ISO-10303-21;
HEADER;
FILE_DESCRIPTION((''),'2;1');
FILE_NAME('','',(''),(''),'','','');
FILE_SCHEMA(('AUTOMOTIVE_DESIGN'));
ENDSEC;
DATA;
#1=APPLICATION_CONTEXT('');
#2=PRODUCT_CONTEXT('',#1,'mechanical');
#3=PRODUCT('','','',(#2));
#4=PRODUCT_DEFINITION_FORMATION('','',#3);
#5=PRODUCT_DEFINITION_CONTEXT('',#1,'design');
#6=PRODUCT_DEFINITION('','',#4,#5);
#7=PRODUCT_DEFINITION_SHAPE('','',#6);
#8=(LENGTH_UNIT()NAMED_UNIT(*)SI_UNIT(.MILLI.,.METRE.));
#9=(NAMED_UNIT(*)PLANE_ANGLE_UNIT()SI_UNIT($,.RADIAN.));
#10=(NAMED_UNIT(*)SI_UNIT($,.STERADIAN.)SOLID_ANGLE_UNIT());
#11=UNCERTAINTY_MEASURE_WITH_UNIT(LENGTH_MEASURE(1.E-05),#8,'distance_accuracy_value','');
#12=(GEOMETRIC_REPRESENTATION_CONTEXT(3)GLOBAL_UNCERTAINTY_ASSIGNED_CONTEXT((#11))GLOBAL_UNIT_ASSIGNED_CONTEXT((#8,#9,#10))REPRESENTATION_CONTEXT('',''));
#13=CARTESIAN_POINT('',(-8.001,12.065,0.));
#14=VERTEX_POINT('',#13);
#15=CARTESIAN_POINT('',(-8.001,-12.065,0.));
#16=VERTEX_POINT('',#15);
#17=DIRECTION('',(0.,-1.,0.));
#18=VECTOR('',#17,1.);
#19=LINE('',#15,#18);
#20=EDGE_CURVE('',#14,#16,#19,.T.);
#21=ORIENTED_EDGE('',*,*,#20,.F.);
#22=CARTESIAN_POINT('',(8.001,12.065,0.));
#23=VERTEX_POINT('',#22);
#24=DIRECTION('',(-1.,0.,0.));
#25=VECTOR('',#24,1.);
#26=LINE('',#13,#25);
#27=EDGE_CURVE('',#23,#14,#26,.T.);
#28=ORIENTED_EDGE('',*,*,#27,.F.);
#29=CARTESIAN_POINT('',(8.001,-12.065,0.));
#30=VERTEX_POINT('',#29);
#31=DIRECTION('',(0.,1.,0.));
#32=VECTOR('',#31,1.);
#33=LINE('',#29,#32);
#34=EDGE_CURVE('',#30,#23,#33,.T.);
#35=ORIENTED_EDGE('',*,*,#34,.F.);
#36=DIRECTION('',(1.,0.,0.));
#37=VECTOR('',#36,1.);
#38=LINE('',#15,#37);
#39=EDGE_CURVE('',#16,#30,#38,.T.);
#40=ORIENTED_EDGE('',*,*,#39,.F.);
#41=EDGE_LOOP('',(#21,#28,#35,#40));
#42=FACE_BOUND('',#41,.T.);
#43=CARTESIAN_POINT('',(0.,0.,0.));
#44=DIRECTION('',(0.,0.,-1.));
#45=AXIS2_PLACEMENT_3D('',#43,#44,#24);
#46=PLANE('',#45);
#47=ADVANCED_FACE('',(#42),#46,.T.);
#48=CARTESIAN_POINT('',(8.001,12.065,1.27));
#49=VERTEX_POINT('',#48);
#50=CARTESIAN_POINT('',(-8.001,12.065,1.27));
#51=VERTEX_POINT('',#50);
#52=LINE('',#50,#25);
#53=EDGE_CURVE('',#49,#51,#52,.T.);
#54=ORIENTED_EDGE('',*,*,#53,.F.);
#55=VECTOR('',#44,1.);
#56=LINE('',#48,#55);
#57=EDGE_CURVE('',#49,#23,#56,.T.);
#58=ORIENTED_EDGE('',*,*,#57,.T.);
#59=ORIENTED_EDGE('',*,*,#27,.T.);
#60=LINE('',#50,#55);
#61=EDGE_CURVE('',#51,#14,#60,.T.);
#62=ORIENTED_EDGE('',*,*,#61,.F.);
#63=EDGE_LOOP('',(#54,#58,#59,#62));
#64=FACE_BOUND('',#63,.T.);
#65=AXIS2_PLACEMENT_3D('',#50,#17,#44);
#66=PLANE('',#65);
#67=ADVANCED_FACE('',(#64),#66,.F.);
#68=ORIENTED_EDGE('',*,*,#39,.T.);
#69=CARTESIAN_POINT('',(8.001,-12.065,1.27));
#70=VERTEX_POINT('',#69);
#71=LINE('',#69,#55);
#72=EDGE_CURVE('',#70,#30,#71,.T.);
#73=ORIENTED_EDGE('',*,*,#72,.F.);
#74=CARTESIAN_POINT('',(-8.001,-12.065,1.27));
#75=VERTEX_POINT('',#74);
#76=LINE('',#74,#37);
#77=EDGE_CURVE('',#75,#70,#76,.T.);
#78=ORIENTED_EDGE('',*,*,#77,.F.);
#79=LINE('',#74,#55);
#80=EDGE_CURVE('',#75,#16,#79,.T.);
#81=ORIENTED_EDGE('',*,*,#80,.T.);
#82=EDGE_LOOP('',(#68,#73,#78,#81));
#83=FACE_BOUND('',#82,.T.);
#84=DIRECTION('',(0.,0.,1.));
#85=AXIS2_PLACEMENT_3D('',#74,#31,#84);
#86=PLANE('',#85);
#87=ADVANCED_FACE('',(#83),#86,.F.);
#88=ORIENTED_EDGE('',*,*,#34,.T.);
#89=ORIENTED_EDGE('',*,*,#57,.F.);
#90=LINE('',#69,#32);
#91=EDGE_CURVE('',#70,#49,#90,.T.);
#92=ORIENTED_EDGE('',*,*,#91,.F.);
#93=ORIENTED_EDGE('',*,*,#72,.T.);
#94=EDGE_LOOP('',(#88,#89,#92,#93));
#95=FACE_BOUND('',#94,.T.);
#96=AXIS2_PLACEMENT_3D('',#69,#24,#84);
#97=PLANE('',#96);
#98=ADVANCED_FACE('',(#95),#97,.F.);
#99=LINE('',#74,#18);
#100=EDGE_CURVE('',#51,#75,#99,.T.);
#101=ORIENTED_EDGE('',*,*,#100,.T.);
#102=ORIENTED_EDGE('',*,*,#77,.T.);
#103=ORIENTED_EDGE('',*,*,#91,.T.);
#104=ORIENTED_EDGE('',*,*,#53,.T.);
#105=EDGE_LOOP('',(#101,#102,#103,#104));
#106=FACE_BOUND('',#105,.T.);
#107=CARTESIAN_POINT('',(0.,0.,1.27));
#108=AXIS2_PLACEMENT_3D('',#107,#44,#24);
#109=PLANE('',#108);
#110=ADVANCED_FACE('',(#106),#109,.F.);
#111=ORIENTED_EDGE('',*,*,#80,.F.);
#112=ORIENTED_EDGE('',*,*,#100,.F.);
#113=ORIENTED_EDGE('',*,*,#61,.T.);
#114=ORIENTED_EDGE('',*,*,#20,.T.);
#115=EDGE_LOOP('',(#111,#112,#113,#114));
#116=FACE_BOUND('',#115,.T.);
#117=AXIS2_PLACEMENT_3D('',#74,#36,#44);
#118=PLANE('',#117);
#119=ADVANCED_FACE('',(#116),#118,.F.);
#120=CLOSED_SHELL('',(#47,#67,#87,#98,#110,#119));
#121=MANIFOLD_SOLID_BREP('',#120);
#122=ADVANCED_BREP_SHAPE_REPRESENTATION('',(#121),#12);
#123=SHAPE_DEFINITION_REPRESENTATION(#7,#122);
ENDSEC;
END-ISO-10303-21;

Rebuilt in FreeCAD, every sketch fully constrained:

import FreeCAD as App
import Part
import Sketcher

V = App.Vector
Q = App.Units.Quantity


def add_polygon(sketch, points):
    """Adds a closed chain of lines whose ends are joined by coincident constraints."""
    first, n = sketch.GeometryCount, len(points)
    for a, b in zip(points, points[1:] + points[:1]):
        sketch.addGeometry(Part.LineSegment(App.Vector(*a, 0), App.Vector(*b, 0)), False)
    for i in range(n):
        sketch.addConstraint(Sketcher.Constraint("Coincident", first + i, 2, first + (i + 1) % n, 1))

doc = App.newDocument("Part")
params = doc.addObject("Spreadsheet::Sheet", "Params")
for row, (alias, value) in enumerate([
    ("sketch1_width", "0.63 in"),
    ("sketch1_height", "0.95 in"),
    ("pad1_length", "0.05 in"),
], start=1):
    params.set(f"A{row}", alias)
    params.set(f"B{row}", "=" + value)
    params.setAlias(f"B{row}", alias)

body = doc.addObject("PartDesign::Body", "Body")

# Sketch on XY plane
sketch1 = body.newObject("Sketcher::SketchObject", "Sketch")
sketch1.AttachmentSupport = (doc.getObject("XY_Plane"), [""])
sketch1.MapMode = "FlatFace"
add_polygon(sketch1, [(-8, 12), (-8, -12), (8, -12), (8, 12)])  # lines 0-3
sketch1.addConstraint([
    Sketcher.Constraint("Vertical", 0),
    Sketcher.Constraint("Horizontal", 1),
    Sketcher.Constraint("Vertical", 2),
    Sketcher.Constraint("Horizontal", 3),
    Sketcher.Constraint("Symmetric", 0, 2, 2, 2, -1, 1),
    Sketcher.Constraint("DistanceX", 1, 1, 1, 2, Q("0.63 in")),
    Sketcher.Constraint("DistanceY", 0, 2, 0, 1, Q("0.95 in")),
])
sketch1.setExpression("Constraints[9]", "Params.sketch1_width")
sketch1.setExpression("Constraints[10]", "Params.sketch1_height")
pad1 = body.newObject("PartDesign::Pad", "Pad")
pad1.Profile = sketch1
pad1.setExpression("Length", "Params.pad1_length")

doc.recompute()
